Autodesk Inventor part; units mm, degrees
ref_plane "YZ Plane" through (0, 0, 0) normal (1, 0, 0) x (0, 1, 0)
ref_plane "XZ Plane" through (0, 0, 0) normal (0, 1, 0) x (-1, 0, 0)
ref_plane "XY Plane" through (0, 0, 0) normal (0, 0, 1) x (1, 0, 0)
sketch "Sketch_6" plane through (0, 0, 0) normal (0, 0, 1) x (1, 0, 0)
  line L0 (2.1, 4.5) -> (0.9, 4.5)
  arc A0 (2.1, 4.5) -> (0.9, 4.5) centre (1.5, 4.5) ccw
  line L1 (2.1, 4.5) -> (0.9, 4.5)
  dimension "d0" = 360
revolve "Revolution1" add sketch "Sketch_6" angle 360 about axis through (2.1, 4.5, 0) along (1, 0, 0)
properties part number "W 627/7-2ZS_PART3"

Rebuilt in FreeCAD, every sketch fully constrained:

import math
import FreeCAD as App
import Part
import Sketcher

V = App.Vector

doc = App.newDocument("Part")
params = doc.addObject("Spreadsheet::Sheet", "Params")
for row, (alias, value) in enumerate([
    ("sketch1_radius", "0.6 mm"),
    ("revolution_angle", "360 deg"),
], start=1):
    params.set(f"A{row}", alias)
    params.set(f"B{row}", "=" + value)
    params.setAlias(f"B{row}", alias)

body = doc.addObject("PartDesign::Body", "Body")

sketch1 = doc.addObject("Sketcher::SketchObject", "Sketch")
body.addObject(sketch1)
sketch1.AttachmentSupport = (doc.XY_Plane, [""])
sketch1.MapMode = "FlatFace"
sketch1.addGeometry(Part.LineSegment(V(0.9, 4.5, 0), V(2.1, 4.5, 0)), False)
sketch1.addGeometry(Part.ArcOfCircle(Part.Circle(V(1.5, 4.5, 0), V(0, 0, 1), 0.6), math.radians(0), math.radians(180)), False)
sketch1.addGeometry(Part.LineSegment(V(0.9, 4.5, 0), V(2.1, 4.5, 0)), True)
sketch1.addConstraint(Sketcher.Constraint("Coincident", 0, 1, 1, 2))
sketch1.addConstraint(Sketcher.Constraint("Coincident", 1, 1, 0, 2))
sketch1.addConstraint(Sketcher.Constraint("Horizontal", 0))
sketch1.addConstraint(Sketcher.Constraint("Horizontal", 2))
sketch1.addConstraint(Sketcher.Constraint("Coincident", 2, 1, 0, 1))
sketch1.addConstraint(Sketcher.Constraint("Horizontal", 1, 3, 0, 1))
sketch1.addConstraint(Sketcher.Constraint("Equal", 0, 2))
sketch1.addConstraint(Sketcher.Constraint("Radius", 1, 0.6))
sketch1.addConstraint(Sketcher.Constraint("DistanceX", -1, 1, 1, 3, 1.5))
sketch1.addConstraint(Sketcher.Constraint("DistanceY", -1, 1, 1, 3, 4.5))
sketch1.setExpression("Constraints[7]", "Params.sketch1_radius")
revolution = doc.addObject("PartDesign::Revolution", "Revolution")
body.addObject(revolution)
revolution.Profile = sketch1
revolution.ReferenceAxis = (sketch1, ["Axis0"])
revolution.setExpression("Angle", "Params.revolution_angle")

doc.recompute()
